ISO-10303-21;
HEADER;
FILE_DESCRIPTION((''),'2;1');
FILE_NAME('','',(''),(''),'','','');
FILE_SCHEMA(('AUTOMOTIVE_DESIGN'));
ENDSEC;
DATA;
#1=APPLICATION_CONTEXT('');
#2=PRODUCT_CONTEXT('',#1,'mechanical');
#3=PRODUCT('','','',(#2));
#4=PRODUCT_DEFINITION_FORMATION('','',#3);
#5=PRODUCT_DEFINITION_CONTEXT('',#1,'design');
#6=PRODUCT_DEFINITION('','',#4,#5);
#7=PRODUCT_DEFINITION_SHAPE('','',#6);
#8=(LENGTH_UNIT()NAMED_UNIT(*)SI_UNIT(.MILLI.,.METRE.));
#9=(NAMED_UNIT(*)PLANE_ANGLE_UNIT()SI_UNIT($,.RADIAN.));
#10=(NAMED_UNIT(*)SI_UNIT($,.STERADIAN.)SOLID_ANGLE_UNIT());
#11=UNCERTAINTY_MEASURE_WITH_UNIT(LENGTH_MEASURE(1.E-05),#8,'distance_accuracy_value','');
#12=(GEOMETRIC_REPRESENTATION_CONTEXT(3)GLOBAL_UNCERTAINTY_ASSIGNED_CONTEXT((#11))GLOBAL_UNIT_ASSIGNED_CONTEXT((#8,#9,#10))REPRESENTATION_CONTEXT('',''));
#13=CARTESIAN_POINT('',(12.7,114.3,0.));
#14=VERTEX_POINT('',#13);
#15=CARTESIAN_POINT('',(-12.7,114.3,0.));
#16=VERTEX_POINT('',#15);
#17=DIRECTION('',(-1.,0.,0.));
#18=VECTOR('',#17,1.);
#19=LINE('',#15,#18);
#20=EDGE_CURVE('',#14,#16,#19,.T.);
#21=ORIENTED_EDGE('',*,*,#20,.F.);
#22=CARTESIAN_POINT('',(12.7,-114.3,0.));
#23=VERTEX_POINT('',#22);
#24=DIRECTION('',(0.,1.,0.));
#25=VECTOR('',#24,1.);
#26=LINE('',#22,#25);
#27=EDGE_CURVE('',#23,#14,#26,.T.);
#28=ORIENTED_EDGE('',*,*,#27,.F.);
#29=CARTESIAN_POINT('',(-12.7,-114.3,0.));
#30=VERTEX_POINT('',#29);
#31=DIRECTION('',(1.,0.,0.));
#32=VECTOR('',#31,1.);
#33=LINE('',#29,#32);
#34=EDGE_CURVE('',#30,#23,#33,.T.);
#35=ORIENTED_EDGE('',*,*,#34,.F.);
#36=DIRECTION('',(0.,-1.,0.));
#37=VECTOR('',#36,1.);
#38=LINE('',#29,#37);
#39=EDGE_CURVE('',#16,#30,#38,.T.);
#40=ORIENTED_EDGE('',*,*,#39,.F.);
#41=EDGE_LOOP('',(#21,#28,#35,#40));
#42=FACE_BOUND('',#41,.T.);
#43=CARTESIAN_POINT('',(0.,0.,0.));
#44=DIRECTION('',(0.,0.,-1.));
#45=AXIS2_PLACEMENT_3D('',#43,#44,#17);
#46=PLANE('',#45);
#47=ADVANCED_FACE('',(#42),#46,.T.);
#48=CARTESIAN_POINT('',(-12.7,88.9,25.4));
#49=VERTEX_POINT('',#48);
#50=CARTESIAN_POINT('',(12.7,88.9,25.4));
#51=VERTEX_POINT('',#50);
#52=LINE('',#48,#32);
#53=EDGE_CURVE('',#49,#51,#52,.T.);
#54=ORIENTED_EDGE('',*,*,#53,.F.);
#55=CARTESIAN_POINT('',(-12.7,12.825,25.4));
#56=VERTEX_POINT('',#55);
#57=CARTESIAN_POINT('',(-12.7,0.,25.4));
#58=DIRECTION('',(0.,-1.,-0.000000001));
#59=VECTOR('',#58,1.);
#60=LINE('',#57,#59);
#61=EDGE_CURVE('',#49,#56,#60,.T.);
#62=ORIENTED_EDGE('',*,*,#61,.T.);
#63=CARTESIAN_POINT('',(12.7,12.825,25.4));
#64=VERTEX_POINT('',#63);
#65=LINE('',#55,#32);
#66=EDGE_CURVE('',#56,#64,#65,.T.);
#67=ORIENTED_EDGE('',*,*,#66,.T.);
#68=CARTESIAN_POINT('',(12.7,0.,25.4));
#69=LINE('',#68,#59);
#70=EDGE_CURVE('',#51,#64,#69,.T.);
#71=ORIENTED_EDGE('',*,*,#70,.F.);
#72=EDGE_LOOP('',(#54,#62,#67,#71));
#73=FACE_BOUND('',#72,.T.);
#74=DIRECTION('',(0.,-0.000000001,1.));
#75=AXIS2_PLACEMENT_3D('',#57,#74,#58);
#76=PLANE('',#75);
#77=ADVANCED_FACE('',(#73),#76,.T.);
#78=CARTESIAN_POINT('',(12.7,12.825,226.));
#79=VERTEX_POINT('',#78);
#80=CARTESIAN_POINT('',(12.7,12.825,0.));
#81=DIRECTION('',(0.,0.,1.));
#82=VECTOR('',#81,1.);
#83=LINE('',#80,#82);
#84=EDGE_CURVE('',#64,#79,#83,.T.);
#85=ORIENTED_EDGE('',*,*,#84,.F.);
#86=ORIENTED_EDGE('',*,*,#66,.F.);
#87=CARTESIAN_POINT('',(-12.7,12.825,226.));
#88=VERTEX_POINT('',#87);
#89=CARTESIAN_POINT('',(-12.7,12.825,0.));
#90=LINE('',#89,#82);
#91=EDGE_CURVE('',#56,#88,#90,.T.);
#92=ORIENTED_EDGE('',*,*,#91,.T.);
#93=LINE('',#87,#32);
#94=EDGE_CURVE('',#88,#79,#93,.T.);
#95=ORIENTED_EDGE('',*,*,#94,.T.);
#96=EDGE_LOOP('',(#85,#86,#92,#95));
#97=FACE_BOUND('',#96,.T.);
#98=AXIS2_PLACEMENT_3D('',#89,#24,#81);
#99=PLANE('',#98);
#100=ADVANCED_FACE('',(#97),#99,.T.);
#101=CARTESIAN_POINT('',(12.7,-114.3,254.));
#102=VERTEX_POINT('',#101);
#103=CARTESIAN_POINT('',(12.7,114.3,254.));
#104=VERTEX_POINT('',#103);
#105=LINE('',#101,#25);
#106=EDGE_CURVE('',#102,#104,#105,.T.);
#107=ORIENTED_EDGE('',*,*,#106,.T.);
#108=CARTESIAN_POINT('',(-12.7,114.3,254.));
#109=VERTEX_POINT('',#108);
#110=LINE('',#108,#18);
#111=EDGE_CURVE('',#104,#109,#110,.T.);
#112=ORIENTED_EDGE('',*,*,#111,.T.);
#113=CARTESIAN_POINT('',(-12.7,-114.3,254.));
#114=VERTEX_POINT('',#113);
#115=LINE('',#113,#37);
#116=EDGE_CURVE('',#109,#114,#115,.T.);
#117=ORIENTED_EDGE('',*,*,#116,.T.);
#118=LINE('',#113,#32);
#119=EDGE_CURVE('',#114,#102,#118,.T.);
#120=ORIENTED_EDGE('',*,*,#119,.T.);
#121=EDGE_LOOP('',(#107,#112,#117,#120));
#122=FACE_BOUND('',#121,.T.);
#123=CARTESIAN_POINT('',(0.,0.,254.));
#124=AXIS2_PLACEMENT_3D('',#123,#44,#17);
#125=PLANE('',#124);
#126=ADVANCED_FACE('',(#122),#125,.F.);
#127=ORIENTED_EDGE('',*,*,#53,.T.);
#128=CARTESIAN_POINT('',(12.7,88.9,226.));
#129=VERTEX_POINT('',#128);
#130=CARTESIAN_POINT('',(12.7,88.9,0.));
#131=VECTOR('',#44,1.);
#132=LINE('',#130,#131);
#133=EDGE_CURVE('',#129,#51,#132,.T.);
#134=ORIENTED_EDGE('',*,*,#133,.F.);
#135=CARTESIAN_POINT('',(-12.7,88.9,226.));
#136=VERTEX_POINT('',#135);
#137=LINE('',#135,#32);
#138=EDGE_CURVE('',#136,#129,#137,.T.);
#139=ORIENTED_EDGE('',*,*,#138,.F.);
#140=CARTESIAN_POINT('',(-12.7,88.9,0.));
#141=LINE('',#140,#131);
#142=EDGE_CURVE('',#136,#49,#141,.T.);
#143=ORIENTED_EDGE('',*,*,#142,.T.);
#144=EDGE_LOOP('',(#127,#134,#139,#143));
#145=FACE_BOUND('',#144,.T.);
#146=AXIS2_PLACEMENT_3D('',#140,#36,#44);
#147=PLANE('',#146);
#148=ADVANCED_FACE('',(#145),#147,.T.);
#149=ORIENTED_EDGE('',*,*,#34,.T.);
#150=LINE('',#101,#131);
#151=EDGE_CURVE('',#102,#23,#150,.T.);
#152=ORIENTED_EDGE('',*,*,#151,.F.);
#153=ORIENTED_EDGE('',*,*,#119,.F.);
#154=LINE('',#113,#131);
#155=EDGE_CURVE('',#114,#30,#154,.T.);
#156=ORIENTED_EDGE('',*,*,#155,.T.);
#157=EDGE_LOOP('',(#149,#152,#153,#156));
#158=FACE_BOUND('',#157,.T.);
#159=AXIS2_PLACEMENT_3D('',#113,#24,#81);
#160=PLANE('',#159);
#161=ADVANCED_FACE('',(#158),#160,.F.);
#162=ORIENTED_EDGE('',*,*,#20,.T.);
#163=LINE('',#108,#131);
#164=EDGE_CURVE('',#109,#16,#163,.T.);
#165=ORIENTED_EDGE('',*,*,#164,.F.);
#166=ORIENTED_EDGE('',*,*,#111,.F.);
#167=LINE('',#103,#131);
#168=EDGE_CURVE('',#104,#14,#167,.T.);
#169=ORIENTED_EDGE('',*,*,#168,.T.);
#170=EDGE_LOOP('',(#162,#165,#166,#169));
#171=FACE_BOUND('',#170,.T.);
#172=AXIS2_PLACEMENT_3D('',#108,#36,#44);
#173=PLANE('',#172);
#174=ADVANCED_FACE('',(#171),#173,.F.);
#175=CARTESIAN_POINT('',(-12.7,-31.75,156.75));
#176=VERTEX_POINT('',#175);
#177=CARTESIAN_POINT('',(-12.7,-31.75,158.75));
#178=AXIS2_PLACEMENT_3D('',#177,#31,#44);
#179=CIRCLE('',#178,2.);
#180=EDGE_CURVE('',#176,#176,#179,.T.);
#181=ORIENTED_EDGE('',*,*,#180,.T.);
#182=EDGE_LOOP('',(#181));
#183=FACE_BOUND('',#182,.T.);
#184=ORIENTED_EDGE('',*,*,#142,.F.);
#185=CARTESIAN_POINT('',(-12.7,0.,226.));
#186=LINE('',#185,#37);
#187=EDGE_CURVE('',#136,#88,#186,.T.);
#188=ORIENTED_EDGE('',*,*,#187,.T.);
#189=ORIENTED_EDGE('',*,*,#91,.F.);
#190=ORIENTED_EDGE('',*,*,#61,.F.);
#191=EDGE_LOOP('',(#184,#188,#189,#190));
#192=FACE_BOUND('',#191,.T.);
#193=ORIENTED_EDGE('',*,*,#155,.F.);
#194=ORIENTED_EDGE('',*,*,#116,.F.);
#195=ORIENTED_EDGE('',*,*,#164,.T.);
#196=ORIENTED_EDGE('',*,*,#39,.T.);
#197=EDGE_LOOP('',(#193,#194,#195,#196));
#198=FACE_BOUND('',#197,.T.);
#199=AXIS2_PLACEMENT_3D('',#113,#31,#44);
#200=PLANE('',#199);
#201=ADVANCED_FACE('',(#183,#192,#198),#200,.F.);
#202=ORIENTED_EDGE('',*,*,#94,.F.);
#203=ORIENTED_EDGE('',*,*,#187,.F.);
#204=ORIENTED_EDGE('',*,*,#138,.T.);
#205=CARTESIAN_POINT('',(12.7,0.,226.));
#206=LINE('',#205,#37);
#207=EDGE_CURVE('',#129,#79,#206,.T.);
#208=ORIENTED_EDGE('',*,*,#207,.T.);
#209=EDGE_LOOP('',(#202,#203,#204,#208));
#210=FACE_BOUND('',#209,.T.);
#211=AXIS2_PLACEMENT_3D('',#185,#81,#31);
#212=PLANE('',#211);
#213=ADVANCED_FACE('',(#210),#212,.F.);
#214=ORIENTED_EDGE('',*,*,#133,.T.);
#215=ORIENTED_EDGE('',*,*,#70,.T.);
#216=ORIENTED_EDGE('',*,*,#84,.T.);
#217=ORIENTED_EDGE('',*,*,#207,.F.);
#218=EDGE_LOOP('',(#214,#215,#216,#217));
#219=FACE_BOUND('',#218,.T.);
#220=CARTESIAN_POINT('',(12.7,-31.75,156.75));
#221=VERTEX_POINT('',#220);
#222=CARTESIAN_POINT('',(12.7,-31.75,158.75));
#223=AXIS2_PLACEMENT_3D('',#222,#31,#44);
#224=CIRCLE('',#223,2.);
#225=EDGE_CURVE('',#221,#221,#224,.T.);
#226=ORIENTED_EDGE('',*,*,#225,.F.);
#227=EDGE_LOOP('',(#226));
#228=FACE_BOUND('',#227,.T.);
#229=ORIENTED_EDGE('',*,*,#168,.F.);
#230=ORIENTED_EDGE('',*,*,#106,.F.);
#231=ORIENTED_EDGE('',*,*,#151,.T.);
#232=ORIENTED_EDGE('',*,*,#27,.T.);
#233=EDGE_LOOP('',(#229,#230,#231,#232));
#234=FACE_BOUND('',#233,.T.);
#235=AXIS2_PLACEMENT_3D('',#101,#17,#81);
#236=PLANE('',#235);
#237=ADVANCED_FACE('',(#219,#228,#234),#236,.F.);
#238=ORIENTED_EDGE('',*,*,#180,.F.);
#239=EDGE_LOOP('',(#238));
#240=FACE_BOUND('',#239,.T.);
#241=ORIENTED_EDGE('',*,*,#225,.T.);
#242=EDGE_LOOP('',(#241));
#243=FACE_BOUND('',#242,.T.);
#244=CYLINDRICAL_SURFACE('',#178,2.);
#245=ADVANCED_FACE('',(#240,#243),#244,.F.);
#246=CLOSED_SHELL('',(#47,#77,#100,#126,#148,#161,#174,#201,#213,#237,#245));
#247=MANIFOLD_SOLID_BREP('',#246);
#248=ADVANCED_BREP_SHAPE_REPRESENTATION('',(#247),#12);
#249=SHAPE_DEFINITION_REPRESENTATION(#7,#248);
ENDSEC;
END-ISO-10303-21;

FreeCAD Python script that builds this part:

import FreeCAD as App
import Part
import Sketcher
from FreeCAD import Vector
Q = App.Units.Quantity


def add_polygon(sketch, points):
    """Adds a closed chain of lines whose ends are joined by coincident constraints."""
    first, n = sketch.GeometryCount, len(points)
    for a, b in zip(points, points[1:] + points[:1]):
        sketch.addGeometry(Part.LineSegment(App.Vector(*a, 0), App.Vector(*b, 0)), False)
    for i in range(n):
        sketch.addConstraint(Sketcher.Constraint("Coincident", first + i, 2, first + (i + 1) % n, 1))

doc = App.newDocument("Part")
params = doc.addObject("Spreadsheet::Sheet", "Params")
for row, (alias, value) in enumerate([
    ("sketch1_width", "1 in"),
    ("sketch1_height", "9 in"),
    ("pad1_length", "10 in"),
], start=1):
    params.set(f"A{row}", alias)
    params.set(f"B{row}", "=" + value)
    params.setAlias(f"B{row}", alias)

body = doc.addObject("PartDesign::Body", "Body")

# Sketch on XY plane
sketch1 = doc.addObject("Sketcher::SketchObject", "Sketch")
body.addObject(sketch1)
sketch1.AttachmentSupport = (doc.XY_Plane, [""])
sketch1.MapMode = "FlatFace"
add_polygon(sketch1, [(-13, 114), (-13, -114), (13, -114), (13, 114)])  # lines 0-3
sketch1.addConstraint(Sketcher.Constraint("Vertical", 0))
sketch1.addConstraint(Sketcher.Constraint("Horizontal", 1))
sketch1.addConstraint(Sketcher.Constraint("Vertical", 2))
sketch1.addConstraint(Sketcher.Constraint("Horizontal", 3))
sketch1.addConstraint(Sketcher.Constraint("Symmetric", 0, 2, 2, 2, -1, 1))
sketch1.addConstraint(Sketcher.Constraint("DistanceX", 1, 1, 1, 2, Q("1 in")))
sketch1.addConstraint(Sketcher.Constraint("DistanceY", 0, 2, 0, 1, Q("9 in")))
sketch1.setExpression("Constraints[9]", "Params.sketch1_width")
sketch1.setExpression("Constraints[10]", "Params.sketch1_height")
pad1 = doc.addObject("PartDesign::Pad", "Pad")
body.addObject(pad1)
pad1.Profile = sketch1
pad1.setExpression("Length", "Params.pad1_length")

# Sketch on YZ plane
sketch2 = doc.addObject("Sketcher::SketchObject", "Sketch001")
body.addObject(sketch2)
sketch2.AttachmentSupport = (doc.YZ_Plane, [""])
sketch2.MapMode = "FlatFace"
sketch2.AttachmentOffset = App.Placement(Vector(0, 0, 0.5 * 25.4), App.Rotation())
add_polygon(sketch2, [(89, 25), (89, 226), (13, 226), (13, 25)])  # lines 0-3
sketch2.addConstraint(Sketcher.Constraint("Vertical", 0))
sketch2.addConstraint(Sketcher.Constraint("Horizontal", 1))
sketch2.addConstraint(Sketcher.Constraint("Vertical", 2))
sketch2.addConstraint(Sketcher.Constraint("Horizontal", 3))
sketch2.addConstraint(Sketcher.Constraint("DistanceY", -1, 1, 2, 2, Q("1 in")))
sketch2.addConstraint(Sketcher.Constraint("DistanceX", -1, 1, 0, 2, Q("3.5 in")))
sketch2.addConstraint(Sketcher.Constraint("DistanceX", 1, 2, 1, 1, 76.075))
sketch2.addConstraint(Sketcher.Constraint("DistanceY", 0, 1, 0, 2, 200.6))
pocket1 = doc.addObject("PartDesign::Pocket", "Pocket")
body.addObject(pocket1)
pocket1.Profile = sketch2
pocket1.Type = "ThroughAll"

# Sketch on YZ plane
sketch3 = doc.addObject("Sketcher::SketchObject", "Sketch002")
body.addObject(sketch3)
sketch3.AttachmentSupport = (doc.YZ_Plane, [""])
sketch3.MapMode = "FlatFace"
sketch3.AttachmentOffset = App.Placement(Vector(0, 0, 0.5 * 25.4), App.Rotation())
sketch3.addGeometry(Part.Circle(Vector(-31.8, 158.8, 0), Vector(0, 0, 1), 2), False)
sketch3.addConstraint(Sketcher.Constraint("Diameter", 0, 4.0))
sketch3.addConstraint(Sketcher.Constraint("DistanceX", 0, 3, -1, 1, Q("1.25 in")))
sketch3.addConstraint(Sketcher.Constraint("DistanceY", -1, 1, 0, 3, Q("6.25 in")))
pocket2 = doc.addObject("PartDesign::Pocket", "Pocket001")
body.addObject(pocket2)
pocket2.Profile = sketch3
pocket2.Type = "ThroughAll"

doc.recompute()
